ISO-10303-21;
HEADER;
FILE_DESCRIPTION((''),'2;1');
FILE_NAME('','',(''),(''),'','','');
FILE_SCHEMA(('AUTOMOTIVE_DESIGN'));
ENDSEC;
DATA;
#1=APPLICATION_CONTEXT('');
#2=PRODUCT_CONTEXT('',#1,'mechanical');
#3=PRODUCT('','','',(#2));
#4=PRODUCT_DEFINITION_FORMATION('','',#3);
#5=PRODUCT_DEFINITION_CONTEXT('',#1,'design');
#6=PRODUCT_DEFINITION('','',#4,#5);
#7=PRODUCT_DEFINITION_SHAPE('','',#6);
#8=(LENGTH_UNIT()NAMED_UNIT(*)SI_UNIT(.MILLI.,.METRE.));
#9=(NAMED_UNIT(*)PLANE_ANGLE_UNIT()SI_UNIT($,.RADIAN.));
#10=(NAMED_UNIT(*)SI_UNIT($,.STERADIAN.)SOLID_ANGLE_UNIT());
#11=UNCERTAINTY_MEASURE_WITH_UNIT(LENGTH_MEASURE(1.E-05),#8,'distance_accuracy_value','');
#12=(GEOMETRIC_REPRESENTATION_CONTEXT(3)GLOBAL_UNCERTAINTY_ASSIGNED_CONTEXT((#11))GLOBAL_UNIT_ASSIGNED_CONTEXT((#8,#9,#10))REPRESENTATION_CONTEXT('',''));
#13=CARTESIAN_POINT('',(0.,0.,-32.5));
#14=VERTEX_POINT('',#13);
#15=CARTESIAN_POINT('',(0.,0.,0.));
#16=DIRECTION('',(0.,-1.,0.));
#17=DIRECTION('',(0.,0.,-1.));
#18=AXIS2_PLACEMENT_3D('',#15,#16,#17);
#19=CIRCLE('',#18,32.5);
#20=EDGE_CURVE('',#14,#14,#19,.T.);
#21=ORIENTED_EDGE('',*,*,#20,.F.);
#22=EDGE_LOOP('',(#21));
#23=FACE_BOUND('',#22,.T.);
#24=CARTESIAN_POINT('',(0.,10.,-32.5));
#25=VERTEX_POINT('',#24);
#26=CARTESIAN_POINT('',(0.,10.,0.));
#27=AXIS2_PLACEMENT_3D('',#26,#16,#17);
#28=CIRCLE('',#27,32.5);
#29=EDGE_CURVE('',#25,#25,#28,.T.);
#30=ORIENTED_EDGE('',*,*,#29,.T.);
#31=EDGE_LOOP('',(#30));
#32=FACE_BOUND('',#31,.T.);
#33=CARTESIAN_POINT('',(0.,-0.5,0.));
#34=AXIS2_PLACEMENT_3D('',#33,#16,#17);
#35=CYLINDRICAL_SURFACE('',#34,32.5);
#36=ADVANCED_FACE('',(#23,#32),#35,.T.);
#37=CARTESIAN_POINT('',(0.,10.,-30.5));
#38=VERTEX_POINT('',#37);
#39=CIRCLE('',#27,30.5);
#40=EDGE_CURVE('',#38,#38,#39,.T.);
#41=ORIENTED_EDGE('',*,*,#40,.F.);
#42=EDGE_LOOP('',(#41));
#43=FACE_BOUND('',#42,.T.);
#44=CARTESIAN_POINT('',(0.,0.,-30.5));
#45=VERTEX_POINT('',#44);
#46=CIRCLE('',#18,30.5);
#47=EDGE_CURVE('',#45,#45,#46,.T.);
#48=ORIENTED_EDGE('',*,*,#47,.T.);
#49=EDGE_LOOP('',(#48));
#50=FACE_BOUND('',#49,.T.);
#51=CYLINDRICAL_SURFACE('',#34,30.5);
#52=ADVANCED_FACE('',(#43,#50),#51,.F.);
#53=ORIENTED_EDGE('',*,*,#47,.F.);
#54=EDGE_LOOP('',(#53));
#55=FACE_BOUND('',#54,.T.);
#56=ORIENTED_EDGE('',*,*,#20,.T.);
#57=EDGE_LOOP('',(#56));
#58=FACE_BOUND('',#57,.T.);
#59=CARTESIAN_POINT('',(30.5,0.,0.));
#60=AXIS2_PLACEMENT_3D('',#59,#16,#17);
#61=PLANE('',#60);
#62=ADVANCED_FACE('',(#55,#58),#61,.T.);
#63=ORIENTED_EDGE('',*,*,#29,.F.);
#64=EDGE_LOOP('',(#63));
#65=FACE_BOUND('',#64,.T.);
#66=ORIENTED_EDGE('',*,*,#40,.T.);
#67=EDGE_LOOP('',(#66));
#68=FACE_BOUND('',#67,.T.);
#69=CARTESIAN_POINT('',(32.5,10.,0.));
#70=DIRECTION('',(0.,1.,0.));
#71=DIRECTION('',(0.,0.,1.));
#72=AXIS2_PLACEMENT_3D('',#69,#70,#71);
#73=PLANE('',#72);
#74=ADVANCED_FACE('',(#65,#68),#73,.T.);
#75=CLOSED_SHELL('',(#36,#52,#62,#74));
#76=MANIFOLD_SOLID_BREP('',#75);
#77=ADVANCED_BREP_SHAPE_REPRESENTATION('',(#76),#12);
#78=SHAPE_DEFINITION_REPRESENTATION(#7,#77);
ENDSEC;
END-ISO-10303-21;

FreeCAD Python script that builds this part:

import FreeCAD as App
import Part
import Sketcher
from FreeCAD import Vector
Q = App.Units.Quantity


def add_polygon(sketch, points):
    """Adds a closed chain of lines whose ends are joined by coincident constraints."""
    first, n = sketch.GeometryCount, len(points)
    for a, b in zip(points, points[1:] + points[:1]):
        sketch.addGeometry(Part.LineSegment(App.Vector(*a, 0), App.Vector(*b, 0)), False)
    for i in range(n):
        sketch.addConstraint(Sketcher.Constraint("Coincident", first + i, 2, first + (i + 1) % n, 1))

doc = App.newDocument("Part")
body = doc.addObject("PartDesign::Body", "Body")

# Sketch on XY plane
sketch1 = body.newObject("Sketcher::SketchObject", "Sketch")
sketch1.AttachmentSupport = (doc.getObject("XY_Plane"), [""])
sketch1.MapMode = "FlatFace"
add_polygon(sketch1, [(30.5, 10), (30.5, 0), (32.5, 0), (32.5, 10)])  # lines 0-3
sketch1.addConstraint([
    Sketcher.Constraint("Vertical", 0),
    Sketcher.Constraint("Horizontal", 1),
    Sketcher.Constraint("Vertical", 2),
    Sketcher.Constraint("Horizontal", 3),
    Sketcher.Constraint("PointOnObject", 0, 2, -1),
    Sketcher.Constraint("DistanceX", 1, 1, 1, 2, Q("2 mm")),
    Sketcher.Constraint("DistanceY", 0, 2, 0, 1, Q("10 mm")),
    Sketcher.Constraint("DistanceX", -1, 1, 0, 2, Q("30.5 mm")),
])
revolution = body.newObject("PartDesign::Revolution", "Revolution")
revolution.Profile = sketch1
revolution.ReferenceAxis = (sketch1, ["V_Axis"])
revolution.Angle = 360

doc.recompute()
